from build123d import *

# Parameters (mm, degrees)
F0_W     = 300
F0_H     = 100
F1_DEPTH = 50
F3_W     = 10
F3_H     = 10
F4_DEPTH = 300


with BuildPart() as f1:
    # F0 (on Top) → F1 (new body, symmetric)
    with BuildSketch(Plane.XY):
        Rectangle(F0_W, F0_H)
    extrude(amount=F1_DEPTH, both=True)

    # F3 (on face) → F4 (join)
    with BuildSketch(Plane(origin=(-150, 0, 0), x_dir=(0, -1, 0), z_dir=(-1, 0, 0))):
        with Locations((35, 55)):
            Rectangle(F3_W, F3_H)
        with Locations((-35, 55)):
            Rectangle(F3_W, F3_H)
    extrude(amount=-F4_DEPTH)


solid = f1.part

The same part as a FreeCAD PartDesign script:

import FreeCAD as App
import Part
import Sketcher

V = App.Vector

doc = App.newDocument("Part")
body = doc.addObject("PartDesign::Body", "Body")

sketch1 = doc.addObject("Sketcher::SketchObject", "Sketch")
body.addObject(sketch1)
sketch1.AttachmentSupport = (doc.XY_Plane, [""])
sketch1.MapMode = "FlatFace"
sketch1.addGeometry([
    Part.LineSegment(V(-150, 50, 0), V(-150, -50, 0)),
    Part.LineSegment(V(-150, -50, 0), V(150, -50, 0)),
    Part.LineSegment(V(150, -50, 0), V(150, 50, 0)),
    Part.LineSegment(V(150, 50, 0), V(-150, 50, 0)),
], False)
sketch1.addConstraint([
    Sketcher.Constraint("Coincident", 0, 2, 1, 1),
    Sketcher.Constraint("Coincident", 1, 2, 2, 1),
    Sketcher.Constraint("Coincident", 2, 2, 3, 1),
    Sketcher.Constraint("Coincident", 3, 2, 0, 1),
    Sketcher.Constraint("Vertical", 0),
    Sketcher.Constraint("Horizontal", 1),
    Sketcher.Constraint("Vertical", 2),
    Sketcher.Constraint("Horizontal", 3),
    Sketcher.Constraint("Symmetric", 0, 2, 2, 2, -1, 1),
    Sketcher.Constraint("DistanceX", 1, 1, 1, 2, 300.0),
    Sketcher.Constraint("DistanceY", 0, 2, 0, 1, 100.0),
])
pad1 = doc.addObject("PartDesign::Pad", "Pad")
body.addObject(pad1)
pad1.Profile = sketch1
pad1.Length = 100
pad1.Midplane = True

sketch2 = doc.addObject("Sketcher::SketchObject", "Sketch001")
body.addObject(sketch2)
sketch2.AttachmentSupport = (doc.YZ_Plane, [""])
sketch2.MapMode = "FlatFace"
sketch2.AttachmentOffset = App.Placement(V(0, 0, -150), App.Rotation())
sketch2.addGeometry([
    Part.LineSegment(V(-30, 60, 0), V(-30, 50, 0)),
    Part.LineSegment(V(-30, 50, 0), V(-40, 50, 0)),
    Part.LineSegment(V(-40, 50, 0), V(-40, 60, 0)),
    Part.LineSegment(V(-40, 60, 0), V(-30, 60, 0)),
    Part.LineSegment(V(40, 60, 0), V(40, 50, 0)),
    Part.LineSegment(V(40, 50, 0), V(30, 50, 0)),
    Part.LineSegment(V(30, 50, 0), V(30, 60, 0)),
    Part.LineSegment(V(30, 60, 0), V(40, 60, 0)),
], False)
sketch2.addConstraint([
    Sketcher.Constraint("Coincident", 0, 2, 1, 1),
    Sketcher.Constraint("Coincident", 1, 2, 2, 1),
    Sketcher.Constraint("Coincident", 2, 2, 3, 1),
    Sketcher.Constraint("Coincident", 3, 2, 0, 1),
    Sketcher.Constraint("Coincident", 4, 2, 5, 1),
    Sketcher.Constraint("Coincident", 5, 2, 6, 1),
    Sketcher.Constraint("Coincident", 6, 2, 7, 1),
    Sketcher.Constraint("Coincident", 7, 2, 4, 1),
    Sketcher.Constraint("Vertical", 0),
    Sketcher.Constraint("Horizontal", 1),
    Sketcher.Constraint("Vertical", 2),
    Sketcher.Constraint("Horizontal", 3),
    Sketcher.Constraint("Vertical", 4),
    Sketcher.Constraint("Horizontal", 5),
    Sketcher.Constraint("Vertical", 6),
    Sketcher.Constraint("Horizontal", 7),
    Sketcher.Constraint("Symmetric", 1, 2, 4, 2, -2),
    Sketcher.Constraint("Symmetric", 3, 2, 6, 2, -2),
    Sketcher.Constraint("Equal", 7, 0),
    Sketcher.Constraint("DistanceX", 1, 2, 1, 1, 10.0),
    Sketcher.Constraint("DistanceX", 0, 2, -1, 1, 30.0),
    Sketcher.Constraint("DistanceY", -1, 1, 0, 2, 50.0),
])
pad2 = doc.addObject("PartDesign::Pad", "Pad001")
body.addObject(pad2)
pad2.Profile = sketch2
pad2.Length = 300

doc.recompute()
